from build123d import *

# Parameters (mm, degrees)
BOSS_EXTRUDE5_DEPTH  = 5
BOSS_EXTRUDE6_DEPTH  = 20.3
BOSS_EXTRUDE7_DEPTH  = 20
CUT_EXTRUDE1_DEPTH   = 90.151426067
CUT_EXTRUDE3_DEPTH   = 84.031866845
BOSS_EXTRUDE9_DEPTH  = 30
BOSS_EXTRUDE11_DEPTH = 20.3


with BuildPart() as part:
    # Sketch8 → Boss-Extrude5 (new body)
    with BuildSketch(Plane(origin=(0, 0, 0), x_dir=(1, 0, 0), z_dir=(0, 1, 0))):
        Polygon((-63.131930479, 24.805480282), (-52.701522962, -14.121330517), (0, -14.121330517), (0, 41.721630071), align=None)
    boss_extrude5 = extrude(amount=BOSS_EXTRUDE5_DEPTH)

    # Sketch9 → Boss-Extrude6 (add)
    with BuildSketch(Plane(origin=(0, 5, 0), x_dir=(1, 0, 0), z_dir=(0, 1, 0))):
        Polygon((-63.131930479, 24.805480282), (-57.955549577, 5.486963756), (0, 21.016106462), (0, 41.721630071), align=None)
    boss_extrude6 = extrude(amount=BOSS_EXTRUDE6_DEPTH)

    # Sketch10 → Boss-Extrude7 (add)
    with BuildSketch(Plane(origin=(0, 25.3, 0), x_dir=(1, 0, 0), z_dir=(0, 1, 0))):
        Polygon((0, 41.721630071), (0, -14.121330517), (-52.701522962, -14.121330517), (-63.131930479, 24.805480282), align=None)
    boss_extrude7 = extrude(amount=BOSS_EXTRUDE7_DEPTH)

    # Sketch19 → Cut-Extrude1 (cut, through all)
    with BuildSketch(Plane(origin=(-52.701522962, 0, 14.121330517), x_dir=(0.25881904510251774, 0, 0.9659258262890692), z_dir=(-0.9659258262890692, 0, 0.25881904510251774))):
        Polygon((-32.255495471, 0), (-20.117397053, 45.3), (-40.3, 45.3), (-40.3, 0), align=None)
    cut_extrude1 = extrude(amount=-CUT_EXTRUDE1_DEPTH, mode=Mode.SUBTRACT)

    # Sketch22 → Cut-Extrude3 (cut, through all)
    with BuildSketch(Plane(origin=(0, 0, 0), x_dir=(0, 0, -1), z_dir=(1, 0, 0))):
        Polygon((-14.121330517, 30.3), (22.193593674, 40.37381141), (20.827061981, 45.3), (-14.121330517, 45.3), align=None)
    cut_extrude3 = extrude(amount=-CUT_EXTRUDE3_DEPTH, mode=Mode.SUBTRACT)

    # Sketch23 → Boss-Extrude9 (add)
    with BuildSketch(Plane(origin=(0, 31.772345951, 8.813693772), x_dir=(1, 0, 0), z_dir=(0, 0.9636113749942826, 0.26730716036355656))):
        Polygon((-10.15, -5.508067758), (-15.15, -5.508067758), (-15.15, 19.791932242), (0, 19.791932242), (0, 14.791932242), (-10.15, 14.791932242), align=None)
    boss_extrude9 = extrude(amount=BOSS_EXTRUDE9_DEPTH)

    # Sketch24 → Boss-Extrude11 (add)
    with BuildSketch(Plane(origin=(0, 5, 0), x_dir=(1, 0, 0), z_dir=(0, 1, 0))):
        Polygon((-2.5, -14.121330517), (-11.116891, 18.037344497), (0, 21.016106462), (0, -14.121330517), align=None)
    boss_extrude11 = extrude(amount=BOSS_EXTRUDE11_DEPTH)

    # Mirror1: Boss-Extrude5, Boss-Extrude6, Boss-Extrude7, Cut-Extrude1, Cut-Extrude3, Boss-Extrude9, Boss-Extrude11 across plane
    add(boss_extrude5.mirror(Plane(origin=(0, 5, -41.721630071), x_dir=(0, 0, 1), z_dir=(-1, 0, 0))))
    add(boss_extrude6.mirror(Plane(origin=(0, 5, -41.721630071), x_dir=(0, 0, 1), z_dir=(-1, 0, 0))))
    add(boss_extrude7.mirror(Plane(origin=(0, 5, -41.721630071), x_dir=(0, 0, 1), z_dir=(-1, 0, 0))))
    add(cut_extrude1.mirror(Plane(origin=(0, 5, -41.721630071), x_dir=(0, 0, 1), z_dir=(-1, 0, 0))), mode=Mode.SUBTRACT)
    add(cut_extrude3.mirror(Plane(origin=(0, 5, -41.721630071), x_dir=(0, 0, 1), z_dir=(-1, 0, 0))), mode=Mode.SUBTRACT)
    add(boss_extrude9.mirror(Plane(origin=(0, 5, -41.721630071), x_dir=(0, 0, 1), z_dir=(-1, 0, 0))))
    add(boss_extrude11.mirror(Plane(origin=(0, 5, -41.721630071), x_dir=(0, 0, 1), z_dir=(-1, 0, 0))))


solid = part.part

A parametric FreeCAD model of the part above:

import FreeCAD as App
import Part
import Sketcher

V = App.Vector
Q = App.Units.Quantity

doc = App.newDocument("Part")
params = doc.addObject("Spreadsheet::Sheet", "Params")
for row, (alias, value) in enumerate([
    ("sketch1_length", "40.3 mm"),
    ("pad1_length", "5 mm"),
    ("sketch2_length", "20 mm"),
    ("sketch2_length2", "60 mm"),
    ("pad2_length", "20.3 mm"),
    ("sketch3_length", "40.3 mm"),
    ("pad3_length", "20 mm"),
    ("sketch4_height", "45.3 mm"),
    ("sketch5_width", "15 mm"),
    ("sketch6_width", "5 mm"),
    ("sketch6_height", "20.3 mm"),
    ("sketch6_width2", "10.15 mm"),
    ("pad4_length", "30 mm"),
    ("sketch7_width", "2.5 mm"),
    ("pad5_length", "20.3 mm"),
], start=1):
    params.set(f"A{row}", alias)
    params.set(f"B{row}", "=" + value)
    params.setAlias(f"B{row}", alias)

body = doc.addObject("PartDesign::Body", "Body")

# Sketch on XZ plane
sketch1 = body.newObject("Sketcher::SketchObject", "Sketch")
sketch1.AttachmentSupport = (doc.getObject("XZ_Plane"), [""])
sketch1.MapMode = "FlatFace"
sketch1.addGeometry(Part.LineSegment(V(-63.13193, -24.80548, 0), V(-52.701523, 14.121331, 0)), False)
sketch1.addGeometry(Part.LineSegment(V(-52.701523, 14.121331, 0), V(0, 14.121331, 0)), False)
sketch1.addGeometry(Part.LineSegment(V(0, 14.121331, 0), V(0, -41.72163, 0)), False)
sketch1.addGeometry(Part.LineSegment(V(0, -41.72163, 0), V(-63.13193, -24.80548, 0)), False)
sketch1.addConstraint(Sketcher.Constraint("Coincident", 0, 2, 1, 1))
sketch1.addConstraint(Sketcher.Constraint("Coincident", 1, 2, 2, 1))
sketch1.addConstraint(Sketcher.Constraint("Coincident", 2, 2, 3, 1))
sketch1.addConstraint(Sketcher.Constraint("Coincident", 3, 2, 0, 1))
sketch1.addConstraint(Sketcher.Constraint("Horizontal", 1))
sketch1.addConstraint(Sketcher.Constraint("Vertical", 2))
sketch1.addConstraint(Sketcher.Constraint("PointOnObject", 1, 2, -2))
sketch1.addConstraint(Sketcher.Constraint("Perpendicular", 0, 3))
sketch1.addConstraint(Sketcher.Constraint("Angle", 0, Q("75 deg")))
sketch1.addConstraint(Sketcher.Constraint("Distance", 0, Q("40.3 mm")))
sketch1.addConstraint(Sketcher.Constraint("DistanceY", 2, 2, 2, 1, Q("55.842961 mm")))
sketch1.addConstraint(Sketcher.Constraint("DistanceY", -1, 1, 0, 2, Q("14.121331 mm")))
sketch1.setExpression("Constraints[9]", "Params.sketch1_length")
pad1 = body.newObject("PartDesign::Pad", "Pad")
pad1.Profile = sketch1
pad1.setExpression("Length", "Params.pad1_length")
pad1.Reversed = True

# Sketch on XZ plane
sketch2 = body.newObject("Sketcher::SketchObject", "Sketch001")
sketch2.AttachmentSupport = (doc.getObject("XZ_Plane"), [""])
sketch2.MapMode = "FlatFace"
sketch2.AttachmentOffset = App.Placement(V(0, 0, -5), App.Rotation())
sketch2.addGeometry(Part.LineSegment(V(-63.13193, -24.80548, 0), V(-57.95555, -5.486964, 0)), False)
sketch2.addGeometry(Part.LineSegment(V(-57.95555, -5.486964, 0), V(0, -21.016106, 0)), False)
sketch2.addGeometry(Part.LineSegment(V(0, -21.016106, 0), V(0, -41.72163, 0)), False)
sketch2.addGeometry(Part.LineSegment(V(0, -41.72163, 0), V(-63.13193, -24.80548, 0)), False)
sketch2.addConstraint(Sketcher.Constraint("Coincident", 0, 2, 1, 1))
sketch2.addConstraint(Sketcher.Constraint("Coincident", 1, 2, 2, 1))
sketch2.addConstraint(Sketcher.Constraint("Coincident", 2, 2, 3, 1))
sketch2.addConstraint(Sketcher.Constraint("Coincident", 3, 2, 0, 1))
sketch2.addConstraint(Sketcher.Constraint("Vertical", 2))
sketch2.addConstraint(Sketcher.Constraint("PointOnObject", 1, 2, -2))
sketch2.addConstraint(Sketcher.Constraint("Perpendicular", 0, 1))
sketch2.addConstraint(Sketcher.Constraint("Parallel", 1, 3))
sketch2.addConstraint(Sketcher.Constraint("Angle", 0, Q("75 deg")))
sketch2.addConstraint(Sketcher.Constraint("Distance", 0, Q("20 mm")))
sketch2.addConstraint(Sketcher.Constraint("Distance", 1, Q("60 mm")))
sketch2.addConstraint(Sketcher.Constraint("DistanceY", 2, 2, -1, 1, Q("41.72163 mm")))
sketch2.setExpression("Constraints[9]", "Params.sketch2_length")
sketch2.setExpression("Constraints[10]", "Params.sketch2_length2")
pad2 = body.newObject("PartDesign::Pad", "Pad001")
pad2.Profile = sketch2
pad2.setExpression("Length", "Params.pad2_length")
pad2.Reversed = True

# Sketch on XZ plane
sketch3 = body.newObject("Sketcher::SketchObject", "Sketch002")
sketch3.AttachmentSupport = (doc.getObject("XZ_Plane"), [""])
sketch3.MapMode = "FlatFace"
sketch3.AttachmentOffset = App.Placement(V(0, 0, -25.3), App.Rotation())
sketch3.addGeometry(Part.LineSegment(V(0, 14.121331, 0), V(0, -41.72163, 0)), False)
sketch3.addGeometry(Part.LineSegment(V(0, -41.72163, 0), V(-63.13193, -24.80548, 0)), False)
sketch3.addGeometry(Part.LineSegment(V(-63.13193, -24.80548, 0), V(-52.701523, 14.121331, 0)), False)
sketch3.addGeometry(Part.LineSegment(V(-52.701523, 14.121331, 0), V(0, 14.121331, 0)), False)
sketch3.addConstraint(Sketcher.Constraint("Coincident", 0, 2, 1, 1))
sketch3.addConstraint(Sketcher.Constraint("Coincident", 1, 2, 2, 1))
sketch3.addConstraint(Sketcher.Constraint("Coincident", 2, 2, 3, 1))
sketch3.addConstraint(Sketcher.Constraint("Coincident", 3, 2, 0, 1))
sketch3.addConstraint(Sketcher.Constraint("Vertical", 0))
sketch3.addConstraint(Sketcher.Constraint("Horizontal", 3))
sketch3.addConstraint(Sketcher.Constraint("PointOnObject", 0, 2, -2))
sketch3.addConstraint(Sketcher.Constraint("Perpendicular", 1, 2))
sketch3.addConstraint(Sketcher.Constraint("Angle", 1, Q("165 deg")))
sketch3.addConstraint(Sketcher.Constraint("Distance", 2, Q("40.3 mm")))
sketch3.addConstraint(Sketcher.Constraint("DistanceY", 0, 2, 0, 1, Q("55.842961 mm")))
sketch3.addConstraint(Sketcher.Constraint("DistanceY", 0, 2, -1, 1, Q("41.72163 mm")))
sketch3.setExpression("Constraints[9]", "Params.sketch3_length")
pad3 = body.newObject("PartDesign::Pad", "Pad002")
pad3.Profile = sketch3
pad3.setExpression("Length", "Params.pad3_length")
pad3.Reversed = True

# Sketch on an angled plane
sketch4 = body.newObject("Sketcher::SketchObject", "Sketch003")
sketch4.Placement = App.Placement(V(-52.701523, 0, 14.121331), App.Rotation(V(0.258819045, 0, 0.965925826), V(0, 0.999999999, 0), V(-0.965925826, 0, 0.258819045), "ZXY"))
sketch4.addGeometry(Part.LineSegment(V(-32.255495, 0, 0), V(-20.117397, 45.3, 0)), False)
sketch4.addGeometry(Part.LineSegment(V(-20.117397, 45.3, 0), V(-40.3, 45.3, 0)), False)
sketch4.addGeometry(Part.LineSegment(V(-40.3, 45.3, 0), V(-40.3, 0, 0)), False)
sketch4.addGeometry(Part.LineSegment(V(-40.3, 0, 0), V(-32.255495, 0, 0)), False)
sketch4.addConstraint(Sketcher.Constraint("Coincident", 0, 2, 1, 1))
sketch4.addConstraint(Sketcher.Constraint("Coincident", 1, 2, 2, 1))
sketch4.addConstraint(Sketcher.Constraint("Coincident", 2, 2, 3, 1))
sketch4.addConstraint(Sketcher.Constraint("Coincident", 3, 2, 0, 1))
sketch4.addConstraint(Sketcher.Constraint("Horizontal", 1))
sketch4.addConstraint(Sketcher.Constraint("Vertical", 2))
sketch4.addConstraint(Sketcher.Constraint("Horizontal", 3))
sketch4.addConstraint(Sketcher.Constraint("PointOnObject", 2, 2, -1))
sketch4.addConstraint(Sketcher.Constraint("Angle", 0, Q("75 deg")))
sketch4.addConstraint(Sketcher.Constraint("DistanceY", 2, 2, 2, 1, Q("45.3 mm")))
sketch4.addConstraint(Sketcher.Constraint("DistanceX", 1, 2, -1, 1, Q("40.3 mm")))
sketch4.addConstraint(Sketcher.Constraint("DistanceX", 1, 2, 1, 1, Q("20.182603 mm")))
sketch4.setExpression("Constraints[9]", "Params.sketch4_height")
pocket1 = body.newObject("PartDesign::Pocket", "Pocket")
pocket1.Profile = sketch4
pocket1.Type = "ThroughAll"

# Sketch on YZ plane
sketch5 = body.newObject("Sketcher::SketchObject", "Sketch004")
sketch5.AttachmentSupport = (doc.getObject("YZ_Plane"), [""])
sketch5.MapMode = "FlatFace"
sketch5.addGeometry(Part.LineSegment(V(30.3, 14.121331, 0), V(40.373811, -22.193594, 0)), False)
sketch5.addGeometry(Part.LineSegment(V(40.373811, -22.193594, 0), V(45.3, -20.827062, 0)), False)
sketch5.addGeometry(Part.LineSegment(V(45.3, -20.827062, 0), V(45.3, 14.121331, 0)), False)
sketch5.addGeometry(Part.LineSegment(V(45.3, 14.121331, 0), V(30.3, 14.121331, 0)), False)
sketch5.addConstraint(Sketcher.Constraint("Coincident", 0, 2, 1, 1))
sketch5.addConstraint(Sketcher.Constraint("Coincident", 1, 2, 2, 1))
sketch5.addConstraint(Sketcher.Constraint("Coincident", 2, 2, 3, 1))
sketch5.addConstraint(Sketcher.Constraint("Coincident", 3, 2, 0, 1))
sketch5.addConstraint(Sketcher.Constraint("Vertical", 2))
sketch5.addConstraint(Sketcher.Constraint("Horizontal", 3))
sketch5.addConstraint(Sketcher.Constraint("Perpendicular", 0, 1))
sketch5.addConstraint(Sketcher.Constraint("DistanceX", 3, 2, 3, 1, Q("15 mm")))
sketch5.addConstraint(Sketcher.Constraint("DistanceX", -1, 1, 1, 2, Q("45.3 mm")))
sketch5.addConstraint(Sketcher.Constraint("DistanceY", 2, 1, 2, 2, Q("34.948392 mm")))
sketch5.addConstraint(Sketcher.Constraint("DistanceX", -1, 1, 0, 2, Q("40.373811 mm")))
sketch5.addConstraint(Sketcher.Constraint("DistanceY", 1, 2, -1, 1, Q("20.827062 mm")))
sketch5.setExpression("Constraints[7]", "Params.sketch5_width")
pocket2 = body.newObject("PartDesign::Pocket", "Pocket001")
pocket2.Profile = sketch5
pocket2.Type = "ThroughAll"

# Sketch on an angled plane
sketch6 = body.newObject("Sketcher::SketchObject", "Sketch005")
sketch6.Placement = App.Placement(V(0, 31.772346, 8.813694), App.Rotation(V(1, 0, 0), V(0, 0.26730716, -0.963611375), V(0, 0.963611375, 0.26730716), "ZXY"))
sketch6.addGeometry(Part.LineSegment(V(-15.15, -5.508068, 0), V(-10.15, -5.508068, 0)), False)
sketch6.addGeometry(Part.LineSegment(V(-10.15, -5.508068, 0), V(-10.15, 14.791932, 0)), False)
sketch6.addGeometry(Part.LineSegment(V(-10.15, 14.791932, 0), V(0, 14.791932, 0)), False)
sketch6.addGeometry(Part.LineSegment(V(0, 14.791932, 0), V(0, 19.791932, 0)), False)
sketch6.addGeometry(Part.LineSegment(V(0, 19.791932, 0), V(-15.15, 19.791932, 0)), False)
sketch6.addGeometry(Part.LineSegment(V(-15.15, 19.791932, 0), V(-15.15, -5.508068, 0)), False)
sketch6.addConstraint(Sketcher.Constraint("Coincident", 0, 2, 1, 1))
sketch6.addConstraint(Sketcher.Constraint("Coincident", 1, 2, 2, 1))
sketch6.addConstraint(Sketcher.Constraint("Coincident", 2, 2, 3, 1))
sketch6.addConstraint(Sketcher.Constraint("Coincident", 3, 2, 4, 1))
sketch6.addConstraint(Sketcher.Constraint("Coincident", 4, 2, 5, 1))
sketch6.addConstraint(Sketcher.Constraint("Coincident", 5, 2, 0, 1))
sketch6.addConstraint(Sketcher.Constraint("Horizontal", 0))
sketch6.addConstraint(Sketcher.Constraint("Vertical", 1))
sketch6.addConstraint(Sketcher.Constraint("Horizontal", 2))
sketch6.addConstraint(Sketcher.Constraint("Vertical", 3))
sketch6.addConstraint(Sketcher.Constraint("Horizontal", 4))
sketch6.addConstraint(Sketcher.Constraint("Vertical", 5))
sketch6.addConstraint(Sketcher.Constraint("PointOnObject", 2, 2, -2))
sketch6.addConstraint(Sketcher.Constraint("Equal", 0, 3))
sketch6.addConstraint(Sketcher.Constraint("DistanceX", 0, 1, 0, 2, Q("5 mm")))
sketch6.addConstraint(Sketcher.Constraint("DistanceY", 1, 1, 1, 2, Q("20.3 mm")))
sketch6.addConstraint(Sketcher.Constraint("DistanceX", 2, 1, 2, 2, Q("10.15 mm")))
sketch6.addConstraint(Sketcher.Constraint("DistanceY", 0, 2, -1, 1, Q("5.508068 mm")))
sketch6.setExpression("Constraints[14]", "Params.sketch6_width")
sketch6.setExpression("Constraints[15]", "Params.sketch6_height")
sketch6.setExpression("Constraints[16]", "Params.sketch6_width2")
pad4 = body.newObject("PartDesign::Pad", "Pad003")
pad4.Profile = sketch6
pad4.setExpression("Length", "Params.pad4_length")

# Sketch on XZ plane
sketch7 = body.newObject("Sketcher::SketchObject", "Sketch006")
sketch7.AttachmentSupport = (doc.getObject("XZ_Plane"), [""])
sketch7.MapMode = "FlatFace"
sketch7.AttachmentOffset = App.Placement(V(0, 0, -5), App.Rotation())
sketch7.addGeometry(Part.LineSegment(V(-11.116891, -18.037344, 0), V(-2.5, 14.121331, 0)), False)
sketch7.addGeometry(Part.LineSegment(V(-2.5, 14.121331, 0), V(0, 14.121331, 0)), False)
sketch7.addGeometry(Part.LineSegment(V(0, 14.121331, 0), V(0, -21.016106, 0)), False)
sketch7.addGeometry(Part.LineSegment(V(0, -21.016106, 0), V(-11.116891, -18.037344, 0)), False)
sketch7.addConstraint(Sketcher.Constraint("Coincident", 0, 2, 1, 1))
sketch7.addConstraint(Sketcher.Constraint("Coincident", 1, 2, 2, 1))
sketch7.addConstraint(Sketcher.Constraint("Coincident", 2, 2, 3, 1))
sketch7.addConstraint(Sketcher.Constraint("Coincident", 3, 2, 0, 1))
sketch7.addConstraint(Sketcher.Constraint("Horizontal", 1))
sketch7.addConstraint(Sketcher.Constraint("Vertical", 2))
sketch7.addConstraint(Sketcher.Constraint("PointOnObject", 1, 2, -2))
sketch7.addConstraint(Sketcher.Constraint("Perpendicular", 0, 3))
sketch7.addConstraint(Sketcher.Constraint("Angle", 0, Q("75 deg")))
sketch7.addConstraint(Sketcher.Constraint("DistanceX", 1, 1, 1, 2, Q("2.5 mm")))
sketch7.addConstraint(Sketcher.Constraint("Distance", 0, Q("33.29311 mm")))
sketch7.addConstraint(Sketcher.Constraint("DistanceY", -1, 1, 0, 2, Q("14.121331 mm")))
sketch7.setExpression("Constraints[9]", "Params.sketch7_width")
pad5 = body.newObject("PartDesign::Pad", "Pad004")
pad5.Profile = sketch7
pad5.setExpression("Length", "Params.pad5_length")
pad5.Reversed = True
doc.recompute()

mirrored = body.newObject("PartDesign::Mirrored", "Mirrored")
mirrored.Originals = [pad1, pad2, pad3, pocket1, pocket2, pad4, pad5]
mirrored.MirrorPlane = (doc.getObject("YZ_Plane"), [""])
body.Tip = mirrored

doc.recompute()
